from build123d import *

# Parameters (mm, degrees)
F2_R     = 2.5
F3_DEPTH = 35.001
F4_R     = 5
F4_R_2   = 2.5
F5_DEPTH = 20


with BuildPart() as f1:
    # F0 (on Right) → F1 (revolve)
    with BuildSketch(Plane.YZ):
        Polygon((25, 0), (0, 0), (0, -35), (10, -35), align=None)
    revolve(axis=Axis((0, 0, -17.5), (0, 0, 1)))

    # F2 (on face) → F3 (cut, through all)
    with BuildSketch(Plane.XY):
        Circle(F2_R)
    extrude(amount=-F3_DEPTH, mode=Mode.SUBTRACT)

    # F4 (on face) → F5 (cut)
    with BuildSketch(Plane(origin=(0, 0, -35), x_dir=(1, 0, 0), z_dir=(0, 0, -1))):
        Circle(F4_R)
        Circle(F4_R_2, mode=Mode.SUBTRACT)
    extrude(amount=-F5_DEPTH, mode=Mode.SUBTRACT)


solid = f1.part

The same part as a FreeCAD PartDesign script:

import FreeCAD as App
import Part
import Sketcher
from FreeCAD import Vector
Q = App.Units.Quantity

doc = App.newDocument("Part")
params = doc.addObject("Spreadsheet::Sheet", "Params")
for row, (alias, value) in enumerate([
    ("sketch1_width", "25 mm"),
    ("sketch1_width2", "10 mm"),
    ("sketch1_height", "35 mm"),
    ("revolution_angle", "360 deg"),
    ("sketch2_diameter", "5 mm"),
    ("sketch3_diameter", "10 mm"),
    ("sketch3_diameter2", "5 mm"),
    ("pocket2_length", "20 mm"),
], start=1):
    params.set(f"A{row}", alias)
    params.set(f"B{row}", "=" + value)
    params.setAlias(f"B{row}", alias)

body = doc.addObject("PartDesign::Body", "Body")

# Sketch on YZ plane
sketch1 = body.newObject("Sketcher::SketchObject", "Sketch")
sketch1.AttachmentSupport = (doc.getObject("YZ_Plane"), [""])
sketch1.MapMode = "FlatFace"
sketch1.addGeometry([
    Part.LineSegment(Vector(25, 0, 0), Vector(0, 0, 0)),
    Part.LineSegment(Vector(0, 0, 0), Vector(0, -35, 0)),
    Part.LineSegment(Vector(0, -35, 0), Vector(10, -35, 0)),
    Part.LineSegment(Vector(10, -35, 0), Vector(25, 0, 0)),
], False)
sketch1.addConstraint([
    Sketcher.Constraint("Coincident", 0, 2, 1, 1),
    Sketcher.Constraint("Coincident", 1, 2, 2, 1),
    Sketcher.Constraint("Coincident", 2, 2, 3, 1),
    Sketcher.Constraint("Coincident", 3, 2, 0, 1),
    Sketcher.Constraint("Horizontal", 0),
    Sketcher.Constraint("Vertical", 1),
    Sketcher.Constraint("Horizontal", 2),
    Sketcher.Constraint("Coincident", 0, 2, -1, 1),
    Sketcher.Constraint("DistanceX", 0, 2, 0, 1, Q("25 mm")),
    Sketcher.Constraint("DistanceX", 2, 1, 2, 2, Q("10 mm")),
    Sketcher.Constraint("DistanceY", 1, 2, 1, 1, Q("35 mm")),
])
sketch1.setExpression("Constraints[8]", "Params.sketch1_width")
sketch1.setExpression("Constraints[9]", "Params.sketch1_width2")
sketch1.setExpression("Constraints[10]", "Params.sketch1_height")
revolution = body.newObject("PartDesign::Revolution", "Revolution")
revolution.Profile = sketch1
revolution.ReferenceAxis = (sketch1, ["V_Axis"])
revolution.setExpression("Angle", "Params.revolution_angle")

# Sketch on XY plane
sketch2 = body.newObject("Sketcher::SketchObject", "Sketch001")
sketch2.AttachmentSupport = (doc.getObject("XY_Plane"), [""])
sketch2.MapMode = "FlatFace"
sketch2.addGeometry(Part.Circle(Vector(0, 0, 0), Vector(0, 0, 1), 2.5), False)
sketch2.addConstraint([
    Sketcher.Constraint("Coincident", 0, 3, -1, 1),
    Sketcher.Constraint("Diameter", 0, Q("5 mm")),
])
sketch2.setExpression("Constraints[1]", "Params.sketch2_diameter")
pocket1 = body.newObject("PartDesign::Pocket", "Pocket")
pocket1.Profile = sketch2
pocket1.Type = "ThroughAll"

# Sketch on XY plane
sketch3 = body.newObject("Sketcher::SketchObject", "Sketch002")
sketch3.AttachmentSupport = (doc.getObject("XY_Plane"), [""])
sketch3.MapMode = "FlatFace"
sketch3.AttachmentOffset = App.Placement(Vector(0, 0, -35), App.Rotation())
sketch3.addGeometry([
    Part.Circle(Vector(0, 0, 0), Vector(0, 0, 1), 5),
    Part.Circle(Vector(0, 0, 0), Vector(0, 0, 1), 2.5),
], False)
sketch3.addConstraint([
    Sketcher.Constraint("Coincident", 0, 3, -1, 1),
    Sketcher.Constraint("Coincident", 1, 3, -1, 1),
    Sketcher.Constraint("Diameter", 0, Q("10 mm")),
    Sketcher.Constraint("Diameter", 1, Q("5 mm")),
])
sketch3.setExpression("Constraints[2]", "Params.sketch3_diameter")
sketch3.setExpression("Constraints[3]", "Params.sketch3_diameter2")
pocket2 = body.newObject("PartDesign::Pocket", "Pocket001")
pocket2.Profile = sketch3
pocket2.setExpression("Length", "Params.pocket2_length")
pocket2.Reversed = True

doc.recompute()
